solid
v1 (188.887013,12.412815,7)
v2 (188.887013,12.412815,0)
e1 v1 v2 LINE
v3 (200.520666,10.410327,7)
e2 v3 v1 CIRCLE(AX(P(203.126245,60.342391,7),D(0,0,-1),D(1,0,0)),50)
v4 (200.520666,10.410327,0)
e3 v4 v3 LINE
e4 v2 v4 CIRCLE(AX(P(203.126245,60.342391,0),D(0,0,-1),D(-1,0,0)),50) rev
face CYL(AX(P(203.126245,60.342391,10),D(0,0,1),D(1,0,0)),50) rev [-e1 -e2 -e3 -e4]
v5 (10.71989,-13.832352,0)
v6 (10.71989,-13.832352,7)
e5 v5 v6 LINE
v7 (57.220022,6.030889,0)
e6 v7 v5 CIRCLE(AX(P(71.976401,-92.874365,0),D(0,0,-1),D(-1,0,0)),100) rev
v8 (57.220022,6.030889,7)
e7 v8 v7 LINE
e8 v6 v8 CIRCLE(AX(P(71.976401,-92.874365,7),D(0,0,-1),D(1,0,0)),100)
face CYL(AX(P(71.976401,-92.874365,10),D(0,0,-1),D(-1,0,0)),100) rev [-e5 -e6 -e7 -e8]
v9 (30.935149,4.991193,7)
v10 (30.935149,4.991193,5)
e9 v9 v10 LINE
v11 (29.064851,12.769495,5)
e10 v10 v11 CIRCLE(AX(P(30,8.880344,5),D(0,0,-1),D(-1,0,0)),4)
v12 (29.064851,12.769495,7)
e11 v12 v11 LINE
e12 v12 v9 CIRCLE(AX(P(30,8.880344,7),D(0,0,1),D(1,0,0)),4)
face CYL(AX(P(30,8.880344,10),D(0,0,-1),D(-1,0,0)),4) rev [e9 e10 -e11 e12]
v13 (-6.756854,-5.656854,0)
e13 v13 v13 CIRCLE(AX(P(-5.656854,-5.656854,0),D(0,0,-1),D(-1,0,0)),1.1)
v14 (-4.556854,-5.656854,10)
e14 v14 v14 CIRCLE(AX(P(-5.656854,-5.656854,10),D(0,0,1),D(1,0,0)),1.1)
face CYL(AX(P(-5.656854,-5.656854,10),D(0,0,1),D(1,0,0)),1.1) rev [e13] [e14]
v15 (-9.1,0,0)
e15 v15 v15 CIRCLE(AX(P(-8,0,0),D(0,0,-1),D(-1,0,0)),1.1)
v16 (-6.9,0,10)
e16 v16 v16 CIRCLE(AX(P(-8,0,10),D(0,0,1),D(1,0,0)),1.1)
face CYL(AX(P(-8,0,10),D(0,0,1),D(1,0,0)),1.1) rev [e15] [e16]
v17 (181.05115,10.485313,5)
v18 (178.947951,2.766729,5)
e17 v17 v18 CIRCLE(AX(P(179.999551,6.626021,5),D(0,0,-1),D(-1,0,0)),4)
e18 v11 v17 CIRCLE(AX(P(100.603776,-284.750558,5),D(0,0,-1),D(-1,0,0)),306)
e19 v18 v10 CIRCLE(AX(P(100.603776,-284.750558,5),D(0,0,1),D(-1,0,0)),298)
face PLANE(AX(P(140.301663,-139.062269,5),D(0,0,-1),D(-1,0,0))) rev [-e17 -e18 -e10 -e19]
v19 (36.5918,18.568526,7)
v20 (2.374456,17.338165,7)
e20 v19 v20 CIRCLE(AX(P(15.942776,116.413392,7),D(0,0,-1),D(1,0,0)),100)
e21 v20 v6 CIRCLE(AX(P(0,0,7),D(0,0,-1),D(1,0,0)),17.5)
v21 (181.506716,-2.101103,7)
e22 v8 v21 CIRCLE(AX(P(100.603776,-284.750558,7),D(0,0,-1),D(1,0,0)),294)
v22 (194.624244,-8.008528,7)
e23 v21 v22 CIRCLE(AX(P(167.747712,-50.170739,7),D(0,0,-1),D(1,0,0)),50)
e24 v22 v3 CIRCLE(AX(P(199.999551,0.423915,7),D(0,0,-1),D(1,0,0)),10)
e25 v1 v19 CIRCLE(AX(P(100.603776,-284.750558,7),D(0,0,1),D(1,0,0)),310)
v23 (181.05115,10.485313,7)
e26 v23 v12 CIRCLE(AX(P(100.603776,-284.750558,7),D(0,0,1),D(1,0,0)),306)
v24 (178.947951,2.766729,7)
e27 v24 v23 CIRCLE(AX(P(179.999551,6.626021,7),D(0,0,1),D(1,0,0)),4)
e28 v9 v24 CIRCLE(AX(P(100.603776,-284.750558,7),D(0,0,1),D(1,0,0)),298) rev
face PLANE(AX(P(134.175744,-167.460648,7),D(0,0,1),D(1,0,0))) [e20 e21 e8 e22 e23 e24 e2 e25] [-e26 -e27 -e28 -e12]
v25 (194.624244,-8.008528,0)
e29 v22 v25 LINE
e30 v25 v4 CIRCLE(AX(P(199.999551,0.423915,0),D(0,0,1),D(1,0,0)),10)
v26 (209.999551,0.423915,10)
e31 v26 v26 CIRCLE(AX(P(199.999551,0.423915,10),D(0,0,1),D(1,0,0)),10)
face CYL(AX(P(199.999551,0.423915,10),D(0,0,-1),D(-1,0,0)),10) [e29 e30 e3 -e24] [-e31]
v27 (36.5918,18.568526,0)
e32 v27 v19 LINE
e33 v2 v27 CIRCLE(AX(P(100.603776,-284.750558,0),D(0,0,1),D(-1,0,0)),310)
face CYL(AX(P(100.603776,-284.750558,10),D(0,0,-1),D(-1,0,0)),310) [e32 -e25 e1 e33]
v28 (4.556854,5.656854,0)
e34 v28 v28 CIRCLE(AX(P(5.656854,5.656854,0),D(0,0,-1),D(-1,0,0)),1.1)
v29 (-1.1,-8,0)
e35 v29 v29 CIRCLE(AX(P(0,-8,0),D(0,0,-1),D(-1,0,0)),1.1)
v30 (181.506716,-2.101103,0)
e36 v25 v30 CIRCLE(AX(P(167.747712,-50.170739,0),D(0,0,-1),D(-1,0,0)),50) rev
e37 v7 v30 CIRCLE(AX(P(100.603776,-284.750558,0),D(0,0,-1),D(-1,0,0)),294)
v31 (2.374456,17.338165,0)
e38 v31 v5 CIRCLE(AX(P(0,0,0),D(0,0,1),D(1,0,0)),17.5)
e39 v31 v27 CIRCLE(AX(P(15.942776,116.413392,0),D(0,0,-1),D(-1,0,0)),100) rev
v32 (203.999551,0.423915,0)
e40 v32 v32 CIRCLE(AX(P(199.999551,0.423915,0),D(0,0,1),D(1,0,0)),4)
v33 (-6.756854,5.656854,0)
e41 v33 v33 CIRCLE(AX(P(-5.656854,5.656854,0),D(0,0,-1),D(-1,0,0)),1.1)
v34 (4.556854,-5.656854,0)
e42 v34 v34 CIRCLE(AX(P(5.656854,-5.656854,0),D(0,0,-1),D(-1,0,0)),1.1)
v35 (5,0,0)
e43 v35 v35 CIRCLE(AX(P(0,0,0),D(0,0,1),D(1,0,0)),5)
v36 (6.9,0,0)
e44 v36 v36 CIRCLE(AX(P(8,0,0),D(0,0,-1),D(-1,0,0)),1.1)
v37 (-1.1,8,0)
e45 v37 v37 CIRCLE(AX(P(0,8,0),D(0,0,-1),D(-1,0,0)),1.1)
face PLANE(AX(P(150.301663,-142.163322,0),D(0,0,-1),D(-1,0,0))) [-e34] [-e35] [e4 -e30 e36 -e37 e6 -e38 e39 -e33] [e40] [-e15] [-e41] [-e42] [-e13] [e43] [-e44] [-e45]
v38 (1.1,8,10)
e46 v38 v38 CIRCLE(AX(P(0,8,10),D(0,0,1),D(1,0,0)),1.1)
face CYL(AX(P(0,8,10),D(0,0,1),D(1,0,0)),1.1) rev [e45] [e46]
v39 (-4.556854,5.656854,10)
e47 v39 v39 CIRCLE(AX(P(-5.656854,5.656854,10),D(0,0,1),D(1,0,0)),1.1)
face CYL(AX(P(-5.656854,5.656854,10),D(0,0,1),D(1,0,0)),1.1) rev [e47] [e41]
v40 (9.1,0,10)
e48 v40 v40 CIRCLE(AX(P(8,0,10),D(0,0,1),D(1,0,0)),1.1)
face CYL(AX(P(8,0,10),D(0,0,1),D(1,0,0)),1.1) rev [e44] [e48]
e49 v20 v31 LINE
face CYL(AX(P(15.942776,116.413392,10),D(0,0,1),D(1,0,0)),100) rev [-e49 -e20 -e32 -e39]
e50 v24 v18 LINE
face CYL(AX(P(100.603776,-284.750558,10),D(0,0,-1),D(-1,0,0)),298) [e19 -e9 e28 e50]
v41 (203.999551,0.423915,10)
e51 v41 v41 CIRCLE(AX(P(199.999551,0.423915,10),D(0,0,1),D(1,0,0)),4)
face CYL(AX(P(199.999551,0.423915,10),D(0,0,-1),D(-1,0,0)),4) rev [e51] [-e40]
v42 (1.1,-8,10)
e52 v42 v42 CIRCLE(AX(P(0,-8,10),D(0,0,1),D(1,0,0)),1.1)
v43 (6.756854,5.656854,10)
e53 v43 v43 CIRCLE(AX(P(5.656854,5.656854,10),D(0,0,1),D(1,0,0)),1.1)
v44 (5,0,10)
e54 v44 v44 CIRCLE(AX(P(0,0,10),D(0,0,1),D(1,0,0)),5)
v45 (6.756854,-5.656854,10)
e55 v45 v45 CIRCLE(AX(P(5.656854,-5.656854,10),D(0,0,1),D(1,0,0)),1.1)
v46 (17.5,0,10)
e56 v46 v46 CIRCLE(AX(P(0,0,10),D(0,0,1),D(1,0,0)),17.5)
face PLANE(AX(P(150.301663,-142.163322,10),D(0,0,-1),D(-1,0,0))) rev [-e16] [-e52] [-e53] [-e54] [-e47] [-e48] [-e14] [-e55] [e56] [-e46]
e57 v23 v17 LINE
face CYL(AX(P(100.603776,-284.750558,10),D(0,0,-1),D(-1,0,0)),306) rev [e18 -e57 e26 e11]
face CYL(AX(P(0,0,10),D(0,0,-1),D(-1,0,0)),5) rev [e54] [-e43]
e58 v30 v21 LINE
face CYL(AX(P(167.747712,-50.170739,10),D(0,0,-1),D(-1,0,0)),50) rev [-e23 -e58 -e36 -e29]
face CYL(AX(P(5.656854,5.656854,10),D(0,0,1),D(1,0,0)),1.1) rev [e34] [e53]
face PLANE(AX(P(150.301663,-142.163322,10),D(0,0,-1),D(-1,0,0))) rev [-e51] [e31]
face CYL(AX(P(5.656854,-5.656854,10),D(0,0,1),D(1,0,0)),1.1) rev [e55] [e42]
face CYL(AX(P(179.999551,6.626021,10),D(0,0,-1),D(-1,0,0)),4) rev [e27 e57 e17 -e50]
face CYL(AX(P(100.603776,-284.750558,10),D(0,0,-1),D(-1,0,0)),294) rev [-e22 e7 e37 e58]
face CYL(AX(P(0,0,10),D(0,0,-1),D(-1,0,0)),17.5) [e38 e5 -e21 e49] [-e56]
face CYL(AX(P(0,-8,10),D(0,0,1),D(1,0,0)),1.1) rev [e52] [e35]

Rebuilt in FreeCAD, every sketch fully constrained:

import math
import FreeCAD as App
import Part
import Sketcher
from FreeCAD import Vector


def edges_at(feature, points):
    """Names of the edges that pass closest to the given points."""
    edges = feature.Shape.Edges
    near = lambda p: min(range(len(edges)), key=lambda i: edges[i].distToShape(Part.Vertex(*p))[0])
    return sorted({f"Edge{near(p) + 1}" for p in points})

doc = App.newDocument("Part")
body = doc.addObject("PartDesign::Body", "Body")

# Sketch on XY plane
sketch1 = body.newObject("Sketcher::SketchObject", "Sketch")
sketch1.AttachmentSupport = (doc.getObject("XY_Plane"), [""])
sketch1.MapMode = "FlatFace"
sketch1.addGeometry(Part.ArcOfCircle(Part.Circle(Vector(0, 0, 0), Vector(0, 0, 1), 17.5), math.radians(45.194506), math.radians(350.769147)), False)
sketch1.addGeometry(Part.ArcOfCircle(Part.Circle(Vector(100.603776, -284.750558, 0), Vector(0, 0, 1), 294), math.radians(71.93805), math.radians(106.465427)), False)
sketch1.addGeometry(Part.ArcOfCircle(Part.Circle(Vector(199.999551, 0.423915, 0), Vector(0, 0, 1), 10), math.radians(-145.512585), math.radians(108.21967)), False)
sketch1.addGeometry(Part.ArcOfCircle(Part.Circle(Vector(100.603776, -284.750558, 0), Vector(0, 0, 1), 310), math.radians(71.90788), math.radians(106.54371)), False)
sketch1.addGeometry(Part.Circle(Vector(0, 0, 0), Vector(0, 0, 1), 5), False)
sketch1.addGeometry(Part.Circle(Vector(199.999551, 0.423915, 0), Vector(0, 0, 1), 4), False)
sketch1.addGeometry(Part.ArcOfCircle(Part.Circle(Vector(100.603776, -284.750558, 0), Vector(0, 0, 1), 298), math.radians(74.757797), math.radians(103.520151)), False)
sketch1.addGeometry(Part.ArcOfCircle(Part.Circle(Vector(30, 8.880344, 0), Vector(0, 0, 1), 4), math.radians(103.520151), math.radians(283.520151)), False)
sketch1.addGeometry(Part.ArcOfCircle(Part.Circle(Vector(100.603776, -284.750558, 0), Vector(0, 0, 1), 306), math.radians(74.757797), math.radians(103.520151)), False)
sketch1.addGeometry(Part.ArcOfCircle(Part.Circle(Vector(179.999551, 6.626021, 0), Vector(0, 0, 1), 4), math.radians(-105.242203), math.radians(74.757797)), False)
sketch1.addConstraint(Sketcher.Constraint("Coincident", 0, 2, 1, 2))
sketch1.addConstraint(Sketcher.Constraint("Coincident", 1, 1, 2, 1))
sketch1.addConstraint(Sketcher.Constraint("Coincident", 2, 2, 3, 1))
sketch1.addConstraint(Sketcher.Constraint("Coincident", 3, 2, 0, 1))
sketch1.addConstraint(Sketcher.Constraint("Coincident", 6, 2, 7, 2))
sketch1.addConstraint(Sketcher.Constraint("Coincident", 7, 1, 8, 2))
sketch1.addConstraint(Sketcher.Constraint("Coincident", 8, 1, 9, 2))
sketch1.addConstraint(Sketcher.Constraint("Coincident", 9, 1, 6, 1))
sketch1.addConstraint(Sketcher.Constraint("Coincident", 0, 3, -1, 1))
sketch1.addConstraint(Sketcher.Constraint("Coincident", 4, 3, -1, 1))
sketch1.addConstraint(Sketcher.Constraint("Coincident", 3, 3, 1, 3))
sketch1.addConstraint(Sketcher.Constraint("Coincident", 5, 3, 2, 3))
sketch1.addConstraint(Sketcher.Constraint("Coincident", 6, 3, 1, 3))
sketch1.addConstraint(Sketcher.Constraint("Coincident", 8, 3, 1, 3))
sketch1.addConstraint(Sketcher.Constraint("Diameter", 4, 10.0))
sketch1.addConstraint(Sketcher.Constraint("Diameter", 5, 8.0))
sketch1.addConstraint(Sketcher.Constraint("Radius", 1, 294.0))
sketch1.addConstraint(Sketcher.Constraint("Radius", 2, 10.0))
sketch1.addConstraint(Sketcher.Constraint("Radius", 3, 310.0))
sketch1.addConstraint(Sketcher.Constraint("Radius", 6, 298.0))
sketch1.addConstraint(Sketcher.Constraint("Radius", 7, 4.0))
sketch1.addConstraint(Sketcher.Constraint("Radius", 0, 17.5))
sketch1.addConstraint(Sketcher.Constraint("DistanceX", -1, 1, 7, 3, 30.0))
sketch1.addConstraint(Sketcher.Constraint("DistanceX", 9, 3, 2, 3, 20.0))
sketch1.addConstraint(Sketcher.Constraint("DistanceY", 1, 1, 2, 2, 15.1609))
sketch1.addConstraint(Sketcher.Constraint("DistanceX", 7, 1, 6, 2, 1.870299))
sketch1.addConstraint(Sketcher.Constraint("DistanceX", 9, 3, 8, 1, 1.0516))
sketch1.addConstraint(Sketcher.Constraint("DistanceX", 9, 1, 9, 3, 1.0516))
sketch1.addConstraint(Sketcher.Constraint("DistanceY", 1, 3, -1, 1, 284.750558))
sketch1.addConstraint(Sketcher.Constraint("DistanceX", -1, 1, 2, 3, 199.999551))
sketch1.addConstraint(Sketcher.Constraint("DistanceY", -1, 1, 9, 3, 6.626021))
sketch1.addConstraint(Sketcher.Constraint("DistanceX", -1, 1, 6, 2, 30.935149))
pad1 = body.newObject("PartDesign::Pad", "Pad")
pad1.Profile = sketch1
pad1.Length = 10
doc.recompute()

fillet = body.newObject("PartDesign::Fillet", "Fillet")
fillet.Base = (pad1, edges_at(pad1, [(17.273, -2.807, 5), (12.332, 12.416, 5)]))
fillet.Radius = 100
doc.recompute()

fillet2 = body.newObject("PartDesign::Fillet", "Fillet001")
fillet2.Base = (fillet, edges_at(fillet, [(196.873, 9.923, 5), (191.757, -5.238, 5)]))
fillet2.Radius = 50

# Sketch on XY plane
sketch2 = body.newObject("Sketcher::SketchObject", "Sketch001")
sketch2.AttachmentSupport = (doc.getObject("XY_Plane"), [""])
sketch2.MapMode = "FlatFace"
sketch2.addGeometry(Part.ArcOfCircle(Part.Circle(Vector(30, 8.9, 0), Vector(0, 0, 1), 4), math.radians(104), math.radians(284)), False)
sketch2.addGeometry(Part.ArcOfCircle(Part.Circle(Vector(100.6, -284.8, 0), Vector(0, 0, 1), 306), math.radians(75), math.radians(104)), False)
sketch2.addGeometry(Part.ArcOfCircle(Part.Circle(Vector(180, 6.6, 0), Vector(0, 0, 1), 4), math.radians(-105), math.radians(75)), False)
sketch2.addGeometry(Part.ArcOfCircle(Part.Circle(Vector(100.6, -284.8, 0), Vector(0, 0, 1), 298), math.radians(75), math.radians(104)), False)
sketch2.addConstraint(Sketcher.Constraint("Tangent", 0, 1, 1, 2))
sketch2.addConstraint(Sketcher.Constraint("Tangent", 1, 1, 2, 2))
sketch2.addConstraint(Sketcher.Constraint("Tangent", 2, 1, 3, 1))
sketch2.addConstraint(Sketcher.Constraint("Tangent", 3, 2, 0, 2))
sketch2.addConstraint(Sketcher.Constraint("Coincident", 3, 3, 1, 3))
sketch2.addConstraint(Sketcher.Constraint("Radius", 0, 4.0))
sketch2.addConstraint(Sketcher.Constraint("Radius", 1, 306.0))
sketch2.addConstraint(Sketcher.Constraint("DistanceX", -1, 1, 0, 3, 30.0))
sketch2.addConstraint(Sketcher.Constraint("DistanceX", 3, 2, 1, 1, 150.116001))
sketch2.addConstraint(Sketcher.Constraint("DistanceX", 0, 1, 2, 3, 150.9347))
sketch2.addConstraint(Sketcher.Constraint("DistanceY", 1, 3, -1, 1, 284.750558))
pad2 = body.newObject("PartDesign::Pad", "Pad001")
pad2.Profile = sketch2
pad2.Length = 5

# Sketch on XY plane
sketch3 = body.newObject("Sketcher::SketchObject", "Sketch002")
sketch3.AttachmentSupport = (doc.getObject("XY_Plane"), [""])
sketch3.MapMode = "FlatFace"
sketch3.AttachmentOffset = App.Placement(Vector(0, 0, 10), App.Rotation())
sketch3.addGeometry(Part.ArcOfCircle(Part.Circle(Vector(0, 0, 0), Vector(0, 0, 1), 18), math.radians(-52), math.radians(82)), False)
sketch3.addGeometry(Part.ArcOfCircle(Part.Circle(Vector(72, -93, 0), Vector(0, 0, 1), 100), math.radians(98), math.radians(128)), False)
sketch3.addGeometry(Part.ArcOfCircle(Part.Circle(Vector(101, -285, 0), Vector(0, 0, 1), 294), math.radians(74), math.radians(98)), False)
sketch3.addGeometry(Part.ArcOfCircle(Part.Circle(Vector(168, -50, 0), Vector(0, 0, 1), 50), math.radians(57.48), math.radians(74.03)), False)
sketch3.addGeometry(Part.ArcOfCircle(Part.Circle(Vector(200, 0, 0), Vector(0, 0, 1), 10), math.radians(87), math.radians(237)), False)
sketch3.addGeometry(Part.ArcOfCircle(Part.Circle(Vector(203, 60, 0), Vector(0, 0, 1), 50), math.radians(-106.55), math.radians(-92.99)), False)
sketch3.addGeometry(Part.ArcOfCircle(Part.Circle(Vector(101, -285, 0), Vector(0, 0, 1), 310), math.radians(73), math.radians(102)), False)
sketch3.addGeometry(Part.ArcOfCircle(Part.Circle(Vector(16, 116, 0), Vector(0, 0, 1), 100), math.radians(-97.8), math.radians(-78.08)), False)
sketch3.addConstraint(Sketcher.Constraint("Tangent", 0, 1, 1, 2))
sketch3.addConstraint(Sketcher.Constraint("Tangent", 1, 1, 2, 2))
sketch3.addConstraint(Sketcher.Constraint("Tangent", 2, 1, 3, 2))
sketch3.addConstraint(Sketcher.Constraint("Tangent", 3, 1, 4, 2))
sketch3.addConstraint(Sketcher.Constraint("Tangent", 4, 1, 5, 2))
sketch3.addConstraint(Sketcher.Constraint("Tangent", 5, 1, 6, 1))
sketch3.addConstraint(Sketcher.Constraint("Tangent", 6, 2, 7, 2))
sketch3.addConstraint(Sketcher.Constraint("Tangent", 7, 1, 0, 2))
sketch3.addConstraint(Sketcher.Constraint("Coincident", 0, 3, -1, 1))
sketch3.addConstraint(Sketcher.Constraint("Coincident", 6, 3, 2, 3))
sketch3.addConstraint(Sketcher.Constraint("Equal", 3, 5))
sketch3.addConstraint(Sketcher.Constraint("Equal", 1, 7))
sketch3.addConstraint(Sketcher.Constraint("Radius", 1, 100.0))
sketch3.addConstraint(Sketcher.Constraint("Radius", 2, 294.0))
sketch3.addConstraint(Sketcher.Constraint("Radius", 3, 50.0))
sketch3.addConstraint(Sketcher.Constraint("Radius", 4, 10.0))
sketch3.addConstraint(Sketcher.Constraint("Radius", 6, 310.0))
sketch3.addConstraint(Sketcher.Constraint("Radius", 0, 17.5))
sketch3.addConstraint(Sketcher.Constraint("DistanceY", 5, 3, 7, 3, 56.071002))
sketch3.addConstraint(Sketcher.Constraint("DistanceX", 3, 1, 5, 3, 8.502))
sketch3.addConstraint(Sketcher.Constraint("DistanceX", -1, 1, 1, 3, 71.976401))
sketch3.addConstraint(Sketcher.Constraint("DistanceY", 2, 3, -1, 1, 284.750558))
pocket1 = body.newObject("PartDesign::Pocket", "Pocket")
pocket1.Profile = sketch3
pocket1.Length = 3

# Sketch on XY plane
sketch4 = body.newObject("Sketcher::SketchObject", "Sketch003")
sketch4.AttachmentSupport = (doc.getObject("XY_Plane"), [""])
sketch4.MapMode = "FlatFace"
sketch4.AttachmentOffset = App.Placement(Vector(0, 0, 10), App.Rotation())
sketch4.addGeometry(Part.Circle(Vector(0, 8, 0), Vector(0, 0, 1), 1.1), False)
sketch4.addGeometry(Part.Circle(Vector(5.7, 5.7, 0), Vector(0, 0, 1), 1.1), False)
sketch4.addGeometry(Part.Circle(Vector(8, 0, 0), Vector(0, 0, 1), 1.1), False)
sketch4.addGeometry(Part.Circle(Vector(5.7, -5.7, 0), Vector(0, 0, 1), 1.1), False)
sketch4.addGeometry(Part.Circle(Vector(0, -8, 0), Vector(0, 0, 1), 1.1), False)
sketch4.addGeometry(Part.Circle(Vector(-5.7, -5.7, 0), Vector(0, 0, 1), 1.1), False)
sketch4.addGeometry(Part.Circle(Vector(-8, 0, 0), Vector(0, 0, 1), 1.1), False)
sketch4.addGeometry(Part.Circle(Vector(-5.7, 5.7, 0), Vector(0, 0, 1), 1.1), False)
sketch4.addConstraint(Sketcher.Constraint("Equal", 0, 1))
sketch4.addConstraint(Sketcher.Constraint("Equal", 1, 2))
sketch4.addConstraint(Sketcher.Constraint("Equal", 2, 3))
sketch4.addConstraint(Sketcher.Constraint("Equal", 3, 4))
sketch4.addConstraint(Sketcher.Constraint("Equal", 4, 5))
sketch4.addConstraint(Sketcher.Constraint("Equal", 5, 6))
sketch4.addConstraint(Sketcher.Constraint("Equal", 6, 7))
sketch4.addConstraint(Sketcher.Constraint("Symmetric", 0, 3, 4, 3, -1, 1))
sketch4.addConstraint(Sketcher.Constraint("Symmetric", 1, 3, 5, 3, -1, 1))
sketch4.addConstraint(Sketcher.Constraint("Symmetric", 2, 3, 6, 3, -1, 1))
sketch4.addConstraint(Sketcher.Constraint("Symmetric", 3, 3, 7, 3, -1, 1))
sketch4.addConstraint(Sketcher.Constraint("Symmetric", 3, 3, 5, 3, -2))
sketch4.addConstraint(Sketcher.Constraint("PointOnObject", 0, 3, -2))
sketch4.addConstraint(Sketcher.Constraint("PointOnObject", 2, 3, -1))
sketch4.addConstraint(Sketcher.Constraint("Diameter", 0, 2.2))
sketch4.addConstraint(Sketcher.Constraint("DistanceY", -1, 1, 0, 3, 8.0))
sketch4.addConstraint(Sketcher.Constraint("DistanceX", -1, 1, 2, 3, 8.0))
sketch4.addConstraint(Sketcher.Constraint("DistanceY", 3, 3, 1, 3, 11.313708))
sketch4.addConstraint(Sketcher.Constraint("DistanceX", 5, 3, 3, 3, 11.313708))
doc.recompute()
hole = body.newObject("PartDesign::Hole", "Hole")
hole.Profile = sketch4
hole.ThreadType = "None"
hole.Diameter = 2.2
hole.DepthType = "Dimension"
hole.Depth = 10
hole.DrillPoint = "Flat"

doc.recompute()
